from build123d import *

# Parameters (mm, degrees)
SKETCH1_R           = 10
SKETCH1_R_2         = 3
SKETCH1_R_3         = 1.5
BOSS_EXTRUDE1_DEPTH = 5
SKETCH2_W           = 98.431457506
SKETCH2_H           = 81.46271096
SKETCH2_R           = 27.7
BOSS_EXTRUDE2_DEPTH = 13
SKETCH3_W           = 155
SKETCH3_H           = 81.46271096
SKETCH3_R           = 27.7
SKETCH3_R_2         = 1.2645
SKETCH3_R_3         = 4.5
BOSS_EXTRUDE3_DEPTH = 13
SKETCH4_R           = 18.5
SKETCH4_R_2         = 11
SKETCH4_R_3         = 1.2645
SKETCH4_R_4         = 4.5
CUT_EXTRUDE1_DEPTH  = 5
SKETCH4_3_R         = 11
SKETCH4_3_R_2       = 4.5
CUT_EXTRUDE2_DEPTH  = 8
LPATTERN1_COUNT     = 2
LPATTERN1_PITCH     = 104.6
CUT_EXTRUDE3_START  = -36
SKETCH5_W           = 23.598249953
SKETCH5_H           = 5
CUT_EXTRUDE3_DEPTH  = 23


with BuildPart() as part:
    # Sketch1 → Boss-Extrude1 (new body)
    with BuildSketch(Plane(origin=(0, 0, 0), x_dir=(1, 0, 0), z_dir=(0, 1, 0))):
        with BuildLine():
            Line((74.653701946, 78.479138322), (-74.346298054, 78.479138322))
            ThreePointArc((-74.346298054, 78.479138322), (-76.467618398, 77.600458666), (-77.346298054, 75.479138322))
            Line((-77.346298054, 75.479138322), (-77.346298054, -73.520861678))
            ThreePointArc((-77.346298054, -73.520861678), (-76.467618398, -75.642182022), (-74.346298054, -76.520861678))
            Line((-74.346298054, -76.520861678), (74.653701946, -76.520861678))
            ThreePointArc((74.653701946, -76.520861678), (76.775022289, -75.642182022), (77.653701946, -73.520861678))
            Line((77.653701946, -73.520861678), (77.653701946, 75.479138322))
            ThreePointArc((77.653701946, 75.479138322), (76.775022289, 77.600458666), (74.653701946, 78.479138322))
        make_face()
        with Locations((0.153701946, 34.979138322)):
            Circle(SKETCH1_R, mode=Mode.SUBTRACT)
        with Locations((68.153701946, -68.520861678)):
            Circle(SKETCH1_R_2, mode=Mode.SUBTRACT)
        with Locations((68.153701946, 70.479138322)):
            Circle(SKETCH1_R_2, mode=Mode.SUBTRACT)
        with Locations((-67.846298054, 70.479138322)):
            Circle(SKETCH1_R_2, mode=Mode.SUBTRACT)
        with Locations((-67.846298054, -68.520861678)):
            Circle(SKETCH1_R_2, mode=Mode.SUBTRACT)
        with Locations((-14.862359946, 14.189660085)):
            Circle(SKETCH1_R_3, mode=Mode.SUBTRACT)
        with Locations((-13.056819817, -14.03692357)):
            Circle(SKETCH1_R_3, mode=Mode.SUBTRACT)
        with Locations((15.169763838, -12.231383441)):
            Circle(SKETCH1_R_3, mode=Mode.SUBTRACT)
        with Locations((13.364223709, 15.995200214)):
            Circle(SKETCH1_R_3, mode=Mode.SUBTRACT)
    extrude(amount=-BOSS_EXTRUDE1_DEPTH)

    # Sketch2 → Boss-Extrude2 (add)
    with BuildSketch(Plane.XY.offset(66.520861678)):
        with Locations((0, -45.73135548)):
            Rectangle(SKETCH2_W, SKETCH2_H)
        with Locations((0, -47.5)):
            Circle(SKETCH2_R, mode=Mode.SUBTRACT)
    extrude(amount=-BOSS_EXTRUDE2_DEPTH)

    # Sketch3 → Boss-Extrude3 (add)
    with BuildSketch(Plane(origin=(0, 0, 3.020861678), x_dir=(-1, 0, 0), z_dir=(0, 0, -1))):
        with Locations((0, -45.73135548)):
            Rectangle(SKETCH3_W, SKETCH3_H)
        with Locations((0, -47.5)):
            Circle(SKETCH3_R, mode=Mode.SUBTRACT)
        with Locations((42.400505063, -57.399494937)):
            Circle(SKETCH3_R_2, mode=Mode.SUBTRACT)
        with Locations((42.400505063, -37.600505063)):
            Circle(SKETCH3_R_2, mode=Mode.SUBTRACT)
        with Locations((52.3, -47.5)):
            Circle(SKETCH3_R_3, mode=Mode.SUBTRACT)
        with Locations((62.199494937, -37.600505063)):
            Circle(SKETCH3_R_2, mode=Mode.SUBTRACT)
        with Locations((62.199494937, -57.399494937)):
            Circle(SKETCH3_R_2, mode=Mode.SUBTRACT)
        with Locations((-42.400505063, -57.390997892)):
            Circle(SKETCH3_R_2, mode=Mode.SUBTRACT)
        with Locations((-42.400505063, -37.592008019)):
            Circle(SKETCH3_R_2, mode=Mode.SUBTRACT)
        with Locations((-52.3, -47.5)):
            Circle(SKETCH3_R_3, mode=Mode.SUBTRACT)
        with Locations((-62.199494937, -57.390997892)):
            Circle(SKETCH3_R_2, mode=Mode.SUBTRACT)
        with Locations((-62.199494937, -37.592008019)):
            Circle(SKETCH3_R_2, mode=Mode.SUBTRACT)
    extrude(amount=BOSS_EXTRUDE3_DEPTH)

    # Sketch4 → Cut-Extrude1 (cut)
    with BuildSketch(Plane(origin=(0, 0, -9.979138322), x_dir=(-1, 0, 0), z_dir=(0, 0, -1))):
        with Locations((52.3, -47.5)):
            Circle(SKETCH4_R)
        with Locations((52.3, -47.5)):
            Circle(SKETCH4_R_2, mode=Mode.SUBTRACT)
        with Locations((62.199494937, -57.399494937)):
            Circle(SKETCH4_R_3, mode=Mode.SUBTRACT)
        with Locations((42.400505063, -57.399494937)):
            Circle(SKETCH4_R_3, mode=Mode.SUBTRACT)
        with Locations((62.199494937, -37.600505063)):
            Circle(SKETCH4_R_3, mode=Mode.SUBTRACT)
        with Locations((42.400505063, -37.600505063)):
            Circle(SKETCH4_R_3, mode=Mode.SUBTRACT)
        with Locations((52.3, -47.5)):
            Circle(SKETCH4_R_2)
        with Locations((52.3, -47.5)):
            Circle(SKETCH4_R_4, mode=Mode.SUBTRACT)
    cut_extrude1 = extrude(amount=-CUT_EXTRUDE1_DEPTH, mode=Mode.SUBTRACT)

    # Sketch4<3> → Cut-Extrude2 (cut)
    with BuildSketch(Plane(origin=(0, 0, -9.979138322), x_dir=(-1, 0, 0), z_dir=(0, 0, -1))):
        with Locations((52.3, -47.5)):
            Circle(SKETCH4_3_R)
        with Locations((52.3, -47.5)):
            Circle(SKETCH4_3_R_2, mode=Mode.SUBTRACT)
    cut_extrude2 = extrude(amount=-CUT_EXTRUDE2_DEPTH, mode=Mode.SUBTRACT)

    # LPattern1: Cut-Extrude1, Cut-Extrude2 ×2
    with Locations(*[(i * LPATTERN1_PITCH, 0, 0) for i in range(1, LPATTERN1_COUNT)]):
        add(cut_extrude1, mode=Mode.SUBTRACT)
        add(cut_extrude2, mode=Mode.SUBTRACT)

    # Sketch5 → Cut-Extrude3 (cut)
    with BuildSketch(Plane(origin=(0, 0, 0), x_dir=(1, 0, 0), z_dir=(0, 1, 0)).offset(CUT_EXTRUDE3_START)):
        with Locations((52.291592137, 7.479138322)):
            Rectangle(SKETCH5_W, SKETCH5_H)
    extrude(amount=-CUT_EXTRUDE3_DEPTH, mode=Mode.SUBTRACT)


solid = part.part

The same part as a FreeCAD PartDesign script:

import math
import FreeCAD as App
import Part
import Sketcher

V = App.Vector
Q = App.Units.Quantity


def add_polygon(sketch, points):
    """Adds a closed chain of lines whose ends are joined by coincident constraints."""
    first, n = sketch.GeometryCount, len(points)
    for a, b in zip(points, points[1:] + points[:1]):
        sketch.addGeometry(Part.LineSegment(App.Vector(*a, 0), App.Vector(*b, 0)), False)
    for i in range(n):
        sketch.addConstraint(Sketcher.Constraint("Coincident", first + i, 2, first + (i + 1) % n, 1))

doc = App.newDocument("Part")
body = doc.addObject("PartDesign::Body", "Body")

sketch1 = body.newObject("Sketcher::SketchObject", "Sketch")
sketch1.AttachmentSupport = (doc.getObject("XZ_Plane"), [""])
sketch1.MapMode = "FlatFace"
sketch1.addGeometry([
    Part.LineSegment(V(74.7, -78.5, 0), V(-74.3, -78.5, 0)),
    Part.ArcOfCircle(Part.Circle(V(-74.3, -75.5, 0), V(0, 0, 1), 3), math.radians(180), math.radians(270)),
    Part.LineSegment(V(-77.3, -75.5, 0), V(-77.3, 73.5, 0)),
    Part.ArcOfCircle(Part.Circle(V(-74.3, 73.5, 0), V(0, 0, 1), 3), math.radians(90), math.radians(180)),
    Part.LineSegment(V(-74.3, 76.5, 0), V(74.7, 76.5, 0)),
    Part.ArcOfCircle(Part.Circle(V(74.7, 73.5, 0), V(0, 0, 1), 3), math.radians(0), math.radians(90)),
    Part.LineSegment(V(77.7, 73.5, 0), V(77.7, -75.5, 0)),
    Part.ArcOfCircle(Part.Circle(V(74.7, -75.5, 0), V(0, 0, 1), 3), math.radians(-90), math.radians(0)),
    Part.Circle(V(-67.8, 68.5, 0), V(0, 0, 1), 3),
    Part.Circle(V(-13.1, 14, 0), V(0, 0, 1), 1.5),
    Part.Circle(V(68.2, 68.5, 0), V(0, 0, 1), 3),
    Part.Circle(V(15.2, 12.2, 0), V(0, 0, 1), 1.5),
    Part.Circle(V(-14.9, -14.2, 0), V(0, 0, 1), 1.5),
    Part.Circle(V(-67.8, -70.5, 0), V(0, 0, 1), 3),
    Part.Circle(V(13.4, -16, 0), V(0, 0, 1), 1.5),
    Part.Circle(V(0.2, -35, 0), V(0, 0, 1), 10),
    Part.Circle(V(68.2, -70.5, 0), V(0, 0, 1), 3),
], False)
sketch1.addConstraint([
    Sketcher.Constraint("Tangent", 0, 2, 1, 2),
    Sketcher.Constraint("Tangent", 1, 1, 2, 1),
    Sketcher.Constraint("Tangent", 2, 2, 3, 2),
    Sketcher.Constraint("Tangent", 3, 1, 4, 1),
    Sketcher.Constraint("Tangent", 4, 2, 5, 2),
    Sketcher.Constraint("Tangent", 5, 1, 6, 1),
    Sketcher.Constraint("Tangent", 6, 2, 7, 2),
    Sketcher.Constraint("Tangent", 7, 1, 0, 1),
    Sketcher.Constraint("Horizontal", 0),
    Sketcher.Constraint("Vertical", 2),
    Sketcher.Constraint("Horizontal", 4),
    Sketcher.Constraint("Vertical", 6),
    Sketcher.Constraint("Equal", 1, 3),
    Sketcher.Constraint("Equal", 3, 5),
    Sketcher.Constraint("Equal", 5, 7),
    Sketcher.Constraint("Equal", 7, 8),
    Sketcher.Constraint("Equal", 8, 10),
    Sketcher.Constraint("Equal", 9, 11),
    Sketcher.Constraint("Equal", 11, 12),
    Sketcher.Constraint("Equal", 10, 13),
    Sketcher.Constraint("Equal", 12, 14),
    Sketcher.Constraint("Equal", 13, 16),
    Sketcher.Constraint("Horizontal", 8, 3, 10, 3),
    Sketcher.Constraint("Horizontal", 13, 3, 16, 3),
    Sketcher.Constraint("Vertical", 8, 3, 13, 3),
    Sketcher.Constraint("Vertical", 10, 3, 16, 3),
    Sketcher.Constraint("Equal", 4, 2),
    Sketcher.Constraint("Diameter", 8, Q("6 mm")),
    Sketcher.Constraint("Diameter", 9, Q("3 mm")),
    Sketcher.Constraint("Diameter", 15, Q("20 mm")),
    Sketcher.Constraint("DistanceX", 0, 2, 0, 1, Q("149 mm")),
    Sketcher.Constraint("DistanceY", 8, 3, 3, 3, Q("5 mm")),
    Sketcher.Constraint("DistanceX", 8, 3, 10, 3, Q("136 mm")),
    Sketcher.Constraint("DistanceY", 1, 3, 13, 3, Q("5 mm")),
    Sketcher.Constraint("DistanceX", 13, 3, 15, 3, Q("68 mm")),
    Sketcher.Constraint("DistanceX", 3, 3, 8, 3, Q("6.5 mm")),
    Sketcher.Constraint("DistanceY", 13, 3, 15, 3, Q("35.5 mm")),
    Sketcher.Constraint("DistanceX", 1, 3, -1, 1, Q("74.346298 mm")),
    Sketcher.Constraint("DistanceY", 14, 3, -1, 1, Q("15.9952 mm")),
    Sketcher.Constraint("DistanceY", 1, 3, -1, 1, Q("75.479138 mm")),
    Sketcher.Constraint("DistanceX", 9, 3, -1, 1, Q("13.05682 mm")),
    Sketcher.Constraint("DistanceX", 12, 3, -1, 1, Q("14.86236 mm")),
    Sketcher.Constraint("DistanceY", 12, 3, -1, 1, Q("14.18966 mm")),
    Sketcher.Constraint("DistanceY", 9, 3, 8, 3, Q("54.483938 mm")),
    Sketcher.Constraint("DistanceY", 11, 3, 9, 3, Q("1.80554 mm")),
    Sketcher.Constraint("DistanceX", 11, 3, 10, 3, Q("52.983938 mm")),
    Sketcher.Constraint("DistanceX", 14, 3, 11, 3, Q("1.80554 mm")),
])
pad1 = body.newObject("PartDesign::Pad", "Pad")
pad1.Profile = sketch1
pad1.Length = 5

sketch2 = body.newObject("Sketcher::SketchObject", "Sketch001")
sketch2.AttachmentSupport = (doc.getObject("XY_Plane"), [""])
sketch2.MapMode = "FlatFace"
sketch2.AttachmentOffset = App.Placement(V(0, 0, 66.520862), App.Rotation())
add_polygon(sketch2, [(-49, -5), (-49, -86), (49, -86), (49, -5)])
sketch2.addGeometry(Part.Circle(V(0, -48, 0), V(0, 0, 1), 28), False)
sketch2.addConstraint([
    Sketcher.Constraint("Vertical", 0),
    Sketcher.Constraint("Horizontal", 1),
    Sketcher.Constraint("Vertical", 2),
    Sketcher.Constraint("Horizontal", 3),
    Sketcher.Constraint("PointOnObject", 4, 3, -2),
    Sketcher.Constraint("Diameter", 4, Q("55.4 mm")),
    Sketcher.Constraint("DistanceY", 2, 2, -1, 1, Q("5 mm")),
    Sketcher.Constraint("DistanceY", 4, 3, -1, 1, Q("47.5 mm")),
    Sketcher.Constraint("DistanceY", 0, 2, 0, 1, Q("81.462711 mm")),
    Sketcher.Constraint("DistanceX", 1, 1, 1, 2, Q("98.431458 mm")),
    Sketcher.Constraint("DistanceX", 0, 2, -1, 1, Q("49.215729 mm")),
])
pad2 = body.newObject("PartDesign::Pad", "Pad001")
pad2.Profile = sketch2
pad2.Length = 13
pad2.Reversed = True

sketch3 = body.newObject("Sketcher::SketchObject", "Sketch002")
sketch3.AttachmentSupport = (doc.getObject("XY_Plane"), [""])
sketch3.MapMode = "FlatFace"
sketch3.AttachmentOffset = App.Placement(V(0, 0, 3.020862), App.Rotation())
add_polygon(sketch3, [(77.5, -5), (77.5, -86.5), (-77.5, -86.5), (-77.5, -5)])
sketch3.addGeometry(Part.Circle(V(62.2, -57.4, 0), V(0, 0, 1), 1.3), False)
sketch3.addGeometry(Part.Circle(V(42.4, -57.4, 0), V(0, 0, 1), 1.3), False)
sketch3.addGeometry(Part.Circle(V(-42.4, -57.4, 0), V(0, 0, 1), 1.3), False)
sketch3.addGeometry(Part.Circle(V(-62.2, -57.4, 0), V(0, 0, 1), 1.3), False)
sketch3.addGeometry(Part.Circle(V(52.3, -47.5, 0), V(0, 0, 1), 4.5), False)
sketch3.addGeometry(Part.Circle(V(62.2, -37.6, 0), V(0, 0, 1), 1.3), False)
sketch3.addGeometry(Part.Circle(V(42.4, -37.6, 0), V(0, 0, 1), 1.3), False)
sketch3.addGeometry(Part.Circle(V(0, -47.5, 0), V(0, 0, 1), 27.7), False)
sketch3.addGeometry(Part.Circle(V(-52.3, -47.5, 0), V(0, 0, 1), 4.5), False)
sketch3.addGeometry(Part.Circle(V(-42.4, -37.6, 0), V(0, 0, 1), 1.3), False)
sketch3.addGeometry(Part.Circle(V(-62.2, -37.6, 0), V(0, 0, 1), 1.3), False)
sketch3.addConstraint([
    Sketcher.Constraint("Vertical", 0),
    Sketcher.Constraint("Horizontal", 1),
    Sketcher.Constraint("Vertical", 2),
    Sketcher.Constraint("Horizontal", 3),
    Sketcher.Constraint("Equal", 4, 5),
    Sketcher.Constraint("Equal", 5, 6),
    Sketcher.Constraint("Equal", 6, 7),
    Sketcher.Constraint("Equal", 7, 9),
    Sketcher.Constraint("Equal", 9, 10),
    Sketcher.Constraint("Equal", 8, 12),
    Sketcher.Constraint("Equal", 10, 13),
    Sketcher.Constraint("Equal", 13, 14),
    Sketcher.Constraint("Symmetric", 8, 3, 12, 3, -2),
    Sketcher.Constraint("PointOnObject", 11, 3, -2),
    Sketcher.Constraint("Horizontal", 4, 3, 5, 3),
    Sketcher.Constraint("Horizontal", 6, 3, 7, 3),
    Sketcher.Constraint("Horizontal", 9, 3, 10, 3),
    Sketcher.Constraint("Horizontal", 8, 3, 11, 3),
    Sketcher.Constraint("Horizontal", 13, 3, 14, 3),
    Sketcher.Constraint("Vertical", 4, 3, 9, 3),
    Sketcher.Constraint("Vertical", 5, 3, 10, 3),
    Sketcher.Constraint("Vertical", 6, 3, 13, 3),
    Sketcher.Constraint("Vertical", 7, 3, 14, 3),
    Sketcher.Constraint("Diameter", 8, Q("9 mm")),
    Sketcher.Constraint("Diameter", 11, Q("55.4 mm")),
    Sketcher.Constraint("DistanceX", 1, 2, 1, 1, Q("155 mm")),
    Sketcher.Constraint("Diameter", 4, Q("2.529 mm")),
    Sketcher.Constraint("DistanceY", 2, 2, -1, 1, Q("5 mm")),
    Sketcher.Constraint("DistanceX", -1, 1, 8, 3, Q("52.3 mm")),
    Sketcher.Constraint("DistanceY", 8, 3, -1, 1, Q("47.5 mm")),
    Sketcher.Constraint("DistanceX", -1, 1, 0, 2, Q("77.5 mm")),
    Sketcher.Constraint("DistanceX", 6, 3, 4, 3, Q("104.6 mm")),
    Sketcher.Constraint("DistanceX", 7, 3, 5, 3, Q("104.6 mm")),
    Sketcher.Constraint("DistanceY", 0, 2, 0, 1, Q("81.462711 mm")),
    Sketcher.Constraint("DistanceY", 9, 3, -1, 1, Q("37.592008 mm")),
    Sketcher.Constraint("DistanceX", 5, 3, 4, 3, Q("19.79899 mm")),
    Sketcher.Constraint("DistanceY", 4, 3, 9, 3, Q("19.79899 mm")),
    Sketcher.Constraint("DistanceY", 6, 3, 13, 3, Q("19.79899 mm")),
    Sketcher.Constraint("DistanceX", -1, 1, 4, 3, Q("62.199495 mm")),
    Sketcher.Constraint("DistanceY", 6, 3, -1, 1, Q("57.399495 mm")),
])
pad3 = body.newObject("PartDesign::Pad", "Pad002")
pad3.Profile = sketch3
pad3.Length = 13
pad3.Reversed = True

sketch4 = body.newObject("Sketcher::SketchObject", "Sketch003")
sketch4.AttachmentSupport = (doc.getObject("XY_Plane"), [""])
sketch4.MapMode = "FlatFace"
sketch4.AttachmentOffset = App.Placement(V(0, 0, -9.979138), App.Rotation())
sketch4.addGeometry([
    Part.Circle(V(-52.3, -47.5, 0), V(0, 0, 1), 18.5),
    Part.Circle(V(-42.4, -57.4, 0), V(0, 0, 1), 1.3),
    Part.Circle(V(-62.2, -57.4, 0), V(0, 0, 1), 1.3),
    Part.Circle(V(-42.4, -37.6, 0), V(0, 0, 1), 1.3),
    Part.Circle(V(-52.3, -47.5, 0), V(0, 0, 1), 4.5),
    Part.Circle(V(-62.2, -37.6, 0), V(0, 0, 1), 1.3),
], False)
sketch4.addConstraint([
    Sketcher.Constraint("Coincident", 4, 3, 0, 3),
    Sketcher.Constraint("Equal", 1, 2),
    Sketcher.Constraint("Equal", 2, 3),
    Sketcher.Constraint("Equal", 3, 5),
    Sketcher.Constraint("Horizontal", 1, 3, 2, 3),
    Sketcher.Constraint("Horizontal", 3, 3, 5, 3),
    Sketcher.Constraint("Vertical", 1, 3, 3, 3),
    Sketcher.Constraint("Vertical", 2, 3, 5, 3),
    Sketcher.Constraint("Diameter", 0, Q("37 mm")),
    Sketcher.Constraint("Diameter", 4, Q("9 mm")),
    Sketcher.Constraint("Diameter", 1, Q("2.529 mm")),
    Sketcher.Constraint("DistanceX", 0, 3, -1, 1, Q("52.3 mm")),
    Sketcher.Constraint("DistanceY", 0, 3, -1, 1, Q("47.5 mm")),
    Sketcher.Constraint("DistanceX", 2, 3, 1, 3, Q("19.79899 mm")),
    Sketcher.Constraint("DistanceY", 1, 3, 3, 3, Q("19.79899 mm")),
    Sketcher.Constraint("DistanceX", 1, 3, -1, 1, Q("42.400505 mm")),
    Sketcher.Constraint("DistanceY", 1, 3, -1, 1, Q("57.399495 mm")),
])
pocket1 = body.newObject("PartDesign::Pocket", "Pocket")
pocket1.Profile = sketch4
pocket1.Length = 5
pocket1.Reversed = True

sketch5 = body.newObject("Sketcher::SketchObject", "Sketch004")
sketch5.AttachmentSupport = (doc.getObject("XY_Plane"), [""])
sketch5.MapMode = "FlatFace"
sketch5.AttachmentOffset = App.Placement(V(0, 0, -9.979138), App.Rotation())
sketch5.addGeometry([
    Part.Circle(V(-52.3, -47.5, 0), V(0, 0, 1), 11),
    Part.Circle(V(-52.3, -47.5, 0), V(0, 0, 1), 4.5),
], False)
sketch5.addConstraint([
    Sketcher.Constraint("Coincident", 1, 3, 0, 3),
    Sketcher.Constraint("Diameter", 0, Q("22 mm")),
    Sketcher.Constraint("Diameter", 1, Q("9 mm")),
    Sketcher.Constraint("DistanceX", 0, 3, -1, 1, Q("52.3 mm")),
    Sketcher.Constraint("DistanceY", 0, 3, -1, 1, Q("47.5 mm")),
])
pocket2 = body.newObject("PartDesign::Pocket", "Pocket001")
pocket2.Profile = sketch5
pocket2.Length = 8
pocket2.Reversed = True
doc.recompute()

linearpattern = body.newObject("PartDesign::LinearPattern", "LinearPattern")
linearpattern.Originals = [pocket1, pocket2]
linearpattern.Direction = (doc.getObject("X_Axis"), [""])
linearpattern.Mode = "offset"
linearpattern.Offset = 104.6
linearpattern.Occurrences = 2
body.Tip = linearpattern

sketch6 = body.newObject("Sketcher::SketchObject", "Sketch005")
sketch6.AttachmentSupport = (doc.getObject("XZ_Plane"), [""])
sketch6.MapMode = "FlatFace"
sketch6.AttachmentOffset = App.Placement(V(0, 0, 36), App.Rotation())
add_polygon(sketch6, [(40, -10), (40, -5), (64, -5), (64, -10)])
sketch6.addConstraint([
    Sketcher.Constraint("Vertical", 0),
    Sketcher.Constraint("Horizontal", 1),
    Sketcher.Constraint("Vertical", 2),
    Sketcher.Constraint("Horizontal", 3),
    Sketcher.Constraint("DistanceY", 0, 1, 0, 2, Q("5 mm")),
    Sketcher.Constraint("DistanceX", 1, 1, 1, 2, Q("23.59825 mm")),
    Sketcher.Constraint("DistanceY", 0, 2, -1, 1, Q("4.979138 mm")),
    Sketcher.Constraint("DistanceX", -1, 1, 0, 2, Q("40.492467 mm")),
])
pocket3 = body.newObject("PartDesign::Pocket", "Pocket002")
pocket3.Profile = sketch6
pocket3.Length = 23
pocket3.Reversed = True

doc.recompute()
